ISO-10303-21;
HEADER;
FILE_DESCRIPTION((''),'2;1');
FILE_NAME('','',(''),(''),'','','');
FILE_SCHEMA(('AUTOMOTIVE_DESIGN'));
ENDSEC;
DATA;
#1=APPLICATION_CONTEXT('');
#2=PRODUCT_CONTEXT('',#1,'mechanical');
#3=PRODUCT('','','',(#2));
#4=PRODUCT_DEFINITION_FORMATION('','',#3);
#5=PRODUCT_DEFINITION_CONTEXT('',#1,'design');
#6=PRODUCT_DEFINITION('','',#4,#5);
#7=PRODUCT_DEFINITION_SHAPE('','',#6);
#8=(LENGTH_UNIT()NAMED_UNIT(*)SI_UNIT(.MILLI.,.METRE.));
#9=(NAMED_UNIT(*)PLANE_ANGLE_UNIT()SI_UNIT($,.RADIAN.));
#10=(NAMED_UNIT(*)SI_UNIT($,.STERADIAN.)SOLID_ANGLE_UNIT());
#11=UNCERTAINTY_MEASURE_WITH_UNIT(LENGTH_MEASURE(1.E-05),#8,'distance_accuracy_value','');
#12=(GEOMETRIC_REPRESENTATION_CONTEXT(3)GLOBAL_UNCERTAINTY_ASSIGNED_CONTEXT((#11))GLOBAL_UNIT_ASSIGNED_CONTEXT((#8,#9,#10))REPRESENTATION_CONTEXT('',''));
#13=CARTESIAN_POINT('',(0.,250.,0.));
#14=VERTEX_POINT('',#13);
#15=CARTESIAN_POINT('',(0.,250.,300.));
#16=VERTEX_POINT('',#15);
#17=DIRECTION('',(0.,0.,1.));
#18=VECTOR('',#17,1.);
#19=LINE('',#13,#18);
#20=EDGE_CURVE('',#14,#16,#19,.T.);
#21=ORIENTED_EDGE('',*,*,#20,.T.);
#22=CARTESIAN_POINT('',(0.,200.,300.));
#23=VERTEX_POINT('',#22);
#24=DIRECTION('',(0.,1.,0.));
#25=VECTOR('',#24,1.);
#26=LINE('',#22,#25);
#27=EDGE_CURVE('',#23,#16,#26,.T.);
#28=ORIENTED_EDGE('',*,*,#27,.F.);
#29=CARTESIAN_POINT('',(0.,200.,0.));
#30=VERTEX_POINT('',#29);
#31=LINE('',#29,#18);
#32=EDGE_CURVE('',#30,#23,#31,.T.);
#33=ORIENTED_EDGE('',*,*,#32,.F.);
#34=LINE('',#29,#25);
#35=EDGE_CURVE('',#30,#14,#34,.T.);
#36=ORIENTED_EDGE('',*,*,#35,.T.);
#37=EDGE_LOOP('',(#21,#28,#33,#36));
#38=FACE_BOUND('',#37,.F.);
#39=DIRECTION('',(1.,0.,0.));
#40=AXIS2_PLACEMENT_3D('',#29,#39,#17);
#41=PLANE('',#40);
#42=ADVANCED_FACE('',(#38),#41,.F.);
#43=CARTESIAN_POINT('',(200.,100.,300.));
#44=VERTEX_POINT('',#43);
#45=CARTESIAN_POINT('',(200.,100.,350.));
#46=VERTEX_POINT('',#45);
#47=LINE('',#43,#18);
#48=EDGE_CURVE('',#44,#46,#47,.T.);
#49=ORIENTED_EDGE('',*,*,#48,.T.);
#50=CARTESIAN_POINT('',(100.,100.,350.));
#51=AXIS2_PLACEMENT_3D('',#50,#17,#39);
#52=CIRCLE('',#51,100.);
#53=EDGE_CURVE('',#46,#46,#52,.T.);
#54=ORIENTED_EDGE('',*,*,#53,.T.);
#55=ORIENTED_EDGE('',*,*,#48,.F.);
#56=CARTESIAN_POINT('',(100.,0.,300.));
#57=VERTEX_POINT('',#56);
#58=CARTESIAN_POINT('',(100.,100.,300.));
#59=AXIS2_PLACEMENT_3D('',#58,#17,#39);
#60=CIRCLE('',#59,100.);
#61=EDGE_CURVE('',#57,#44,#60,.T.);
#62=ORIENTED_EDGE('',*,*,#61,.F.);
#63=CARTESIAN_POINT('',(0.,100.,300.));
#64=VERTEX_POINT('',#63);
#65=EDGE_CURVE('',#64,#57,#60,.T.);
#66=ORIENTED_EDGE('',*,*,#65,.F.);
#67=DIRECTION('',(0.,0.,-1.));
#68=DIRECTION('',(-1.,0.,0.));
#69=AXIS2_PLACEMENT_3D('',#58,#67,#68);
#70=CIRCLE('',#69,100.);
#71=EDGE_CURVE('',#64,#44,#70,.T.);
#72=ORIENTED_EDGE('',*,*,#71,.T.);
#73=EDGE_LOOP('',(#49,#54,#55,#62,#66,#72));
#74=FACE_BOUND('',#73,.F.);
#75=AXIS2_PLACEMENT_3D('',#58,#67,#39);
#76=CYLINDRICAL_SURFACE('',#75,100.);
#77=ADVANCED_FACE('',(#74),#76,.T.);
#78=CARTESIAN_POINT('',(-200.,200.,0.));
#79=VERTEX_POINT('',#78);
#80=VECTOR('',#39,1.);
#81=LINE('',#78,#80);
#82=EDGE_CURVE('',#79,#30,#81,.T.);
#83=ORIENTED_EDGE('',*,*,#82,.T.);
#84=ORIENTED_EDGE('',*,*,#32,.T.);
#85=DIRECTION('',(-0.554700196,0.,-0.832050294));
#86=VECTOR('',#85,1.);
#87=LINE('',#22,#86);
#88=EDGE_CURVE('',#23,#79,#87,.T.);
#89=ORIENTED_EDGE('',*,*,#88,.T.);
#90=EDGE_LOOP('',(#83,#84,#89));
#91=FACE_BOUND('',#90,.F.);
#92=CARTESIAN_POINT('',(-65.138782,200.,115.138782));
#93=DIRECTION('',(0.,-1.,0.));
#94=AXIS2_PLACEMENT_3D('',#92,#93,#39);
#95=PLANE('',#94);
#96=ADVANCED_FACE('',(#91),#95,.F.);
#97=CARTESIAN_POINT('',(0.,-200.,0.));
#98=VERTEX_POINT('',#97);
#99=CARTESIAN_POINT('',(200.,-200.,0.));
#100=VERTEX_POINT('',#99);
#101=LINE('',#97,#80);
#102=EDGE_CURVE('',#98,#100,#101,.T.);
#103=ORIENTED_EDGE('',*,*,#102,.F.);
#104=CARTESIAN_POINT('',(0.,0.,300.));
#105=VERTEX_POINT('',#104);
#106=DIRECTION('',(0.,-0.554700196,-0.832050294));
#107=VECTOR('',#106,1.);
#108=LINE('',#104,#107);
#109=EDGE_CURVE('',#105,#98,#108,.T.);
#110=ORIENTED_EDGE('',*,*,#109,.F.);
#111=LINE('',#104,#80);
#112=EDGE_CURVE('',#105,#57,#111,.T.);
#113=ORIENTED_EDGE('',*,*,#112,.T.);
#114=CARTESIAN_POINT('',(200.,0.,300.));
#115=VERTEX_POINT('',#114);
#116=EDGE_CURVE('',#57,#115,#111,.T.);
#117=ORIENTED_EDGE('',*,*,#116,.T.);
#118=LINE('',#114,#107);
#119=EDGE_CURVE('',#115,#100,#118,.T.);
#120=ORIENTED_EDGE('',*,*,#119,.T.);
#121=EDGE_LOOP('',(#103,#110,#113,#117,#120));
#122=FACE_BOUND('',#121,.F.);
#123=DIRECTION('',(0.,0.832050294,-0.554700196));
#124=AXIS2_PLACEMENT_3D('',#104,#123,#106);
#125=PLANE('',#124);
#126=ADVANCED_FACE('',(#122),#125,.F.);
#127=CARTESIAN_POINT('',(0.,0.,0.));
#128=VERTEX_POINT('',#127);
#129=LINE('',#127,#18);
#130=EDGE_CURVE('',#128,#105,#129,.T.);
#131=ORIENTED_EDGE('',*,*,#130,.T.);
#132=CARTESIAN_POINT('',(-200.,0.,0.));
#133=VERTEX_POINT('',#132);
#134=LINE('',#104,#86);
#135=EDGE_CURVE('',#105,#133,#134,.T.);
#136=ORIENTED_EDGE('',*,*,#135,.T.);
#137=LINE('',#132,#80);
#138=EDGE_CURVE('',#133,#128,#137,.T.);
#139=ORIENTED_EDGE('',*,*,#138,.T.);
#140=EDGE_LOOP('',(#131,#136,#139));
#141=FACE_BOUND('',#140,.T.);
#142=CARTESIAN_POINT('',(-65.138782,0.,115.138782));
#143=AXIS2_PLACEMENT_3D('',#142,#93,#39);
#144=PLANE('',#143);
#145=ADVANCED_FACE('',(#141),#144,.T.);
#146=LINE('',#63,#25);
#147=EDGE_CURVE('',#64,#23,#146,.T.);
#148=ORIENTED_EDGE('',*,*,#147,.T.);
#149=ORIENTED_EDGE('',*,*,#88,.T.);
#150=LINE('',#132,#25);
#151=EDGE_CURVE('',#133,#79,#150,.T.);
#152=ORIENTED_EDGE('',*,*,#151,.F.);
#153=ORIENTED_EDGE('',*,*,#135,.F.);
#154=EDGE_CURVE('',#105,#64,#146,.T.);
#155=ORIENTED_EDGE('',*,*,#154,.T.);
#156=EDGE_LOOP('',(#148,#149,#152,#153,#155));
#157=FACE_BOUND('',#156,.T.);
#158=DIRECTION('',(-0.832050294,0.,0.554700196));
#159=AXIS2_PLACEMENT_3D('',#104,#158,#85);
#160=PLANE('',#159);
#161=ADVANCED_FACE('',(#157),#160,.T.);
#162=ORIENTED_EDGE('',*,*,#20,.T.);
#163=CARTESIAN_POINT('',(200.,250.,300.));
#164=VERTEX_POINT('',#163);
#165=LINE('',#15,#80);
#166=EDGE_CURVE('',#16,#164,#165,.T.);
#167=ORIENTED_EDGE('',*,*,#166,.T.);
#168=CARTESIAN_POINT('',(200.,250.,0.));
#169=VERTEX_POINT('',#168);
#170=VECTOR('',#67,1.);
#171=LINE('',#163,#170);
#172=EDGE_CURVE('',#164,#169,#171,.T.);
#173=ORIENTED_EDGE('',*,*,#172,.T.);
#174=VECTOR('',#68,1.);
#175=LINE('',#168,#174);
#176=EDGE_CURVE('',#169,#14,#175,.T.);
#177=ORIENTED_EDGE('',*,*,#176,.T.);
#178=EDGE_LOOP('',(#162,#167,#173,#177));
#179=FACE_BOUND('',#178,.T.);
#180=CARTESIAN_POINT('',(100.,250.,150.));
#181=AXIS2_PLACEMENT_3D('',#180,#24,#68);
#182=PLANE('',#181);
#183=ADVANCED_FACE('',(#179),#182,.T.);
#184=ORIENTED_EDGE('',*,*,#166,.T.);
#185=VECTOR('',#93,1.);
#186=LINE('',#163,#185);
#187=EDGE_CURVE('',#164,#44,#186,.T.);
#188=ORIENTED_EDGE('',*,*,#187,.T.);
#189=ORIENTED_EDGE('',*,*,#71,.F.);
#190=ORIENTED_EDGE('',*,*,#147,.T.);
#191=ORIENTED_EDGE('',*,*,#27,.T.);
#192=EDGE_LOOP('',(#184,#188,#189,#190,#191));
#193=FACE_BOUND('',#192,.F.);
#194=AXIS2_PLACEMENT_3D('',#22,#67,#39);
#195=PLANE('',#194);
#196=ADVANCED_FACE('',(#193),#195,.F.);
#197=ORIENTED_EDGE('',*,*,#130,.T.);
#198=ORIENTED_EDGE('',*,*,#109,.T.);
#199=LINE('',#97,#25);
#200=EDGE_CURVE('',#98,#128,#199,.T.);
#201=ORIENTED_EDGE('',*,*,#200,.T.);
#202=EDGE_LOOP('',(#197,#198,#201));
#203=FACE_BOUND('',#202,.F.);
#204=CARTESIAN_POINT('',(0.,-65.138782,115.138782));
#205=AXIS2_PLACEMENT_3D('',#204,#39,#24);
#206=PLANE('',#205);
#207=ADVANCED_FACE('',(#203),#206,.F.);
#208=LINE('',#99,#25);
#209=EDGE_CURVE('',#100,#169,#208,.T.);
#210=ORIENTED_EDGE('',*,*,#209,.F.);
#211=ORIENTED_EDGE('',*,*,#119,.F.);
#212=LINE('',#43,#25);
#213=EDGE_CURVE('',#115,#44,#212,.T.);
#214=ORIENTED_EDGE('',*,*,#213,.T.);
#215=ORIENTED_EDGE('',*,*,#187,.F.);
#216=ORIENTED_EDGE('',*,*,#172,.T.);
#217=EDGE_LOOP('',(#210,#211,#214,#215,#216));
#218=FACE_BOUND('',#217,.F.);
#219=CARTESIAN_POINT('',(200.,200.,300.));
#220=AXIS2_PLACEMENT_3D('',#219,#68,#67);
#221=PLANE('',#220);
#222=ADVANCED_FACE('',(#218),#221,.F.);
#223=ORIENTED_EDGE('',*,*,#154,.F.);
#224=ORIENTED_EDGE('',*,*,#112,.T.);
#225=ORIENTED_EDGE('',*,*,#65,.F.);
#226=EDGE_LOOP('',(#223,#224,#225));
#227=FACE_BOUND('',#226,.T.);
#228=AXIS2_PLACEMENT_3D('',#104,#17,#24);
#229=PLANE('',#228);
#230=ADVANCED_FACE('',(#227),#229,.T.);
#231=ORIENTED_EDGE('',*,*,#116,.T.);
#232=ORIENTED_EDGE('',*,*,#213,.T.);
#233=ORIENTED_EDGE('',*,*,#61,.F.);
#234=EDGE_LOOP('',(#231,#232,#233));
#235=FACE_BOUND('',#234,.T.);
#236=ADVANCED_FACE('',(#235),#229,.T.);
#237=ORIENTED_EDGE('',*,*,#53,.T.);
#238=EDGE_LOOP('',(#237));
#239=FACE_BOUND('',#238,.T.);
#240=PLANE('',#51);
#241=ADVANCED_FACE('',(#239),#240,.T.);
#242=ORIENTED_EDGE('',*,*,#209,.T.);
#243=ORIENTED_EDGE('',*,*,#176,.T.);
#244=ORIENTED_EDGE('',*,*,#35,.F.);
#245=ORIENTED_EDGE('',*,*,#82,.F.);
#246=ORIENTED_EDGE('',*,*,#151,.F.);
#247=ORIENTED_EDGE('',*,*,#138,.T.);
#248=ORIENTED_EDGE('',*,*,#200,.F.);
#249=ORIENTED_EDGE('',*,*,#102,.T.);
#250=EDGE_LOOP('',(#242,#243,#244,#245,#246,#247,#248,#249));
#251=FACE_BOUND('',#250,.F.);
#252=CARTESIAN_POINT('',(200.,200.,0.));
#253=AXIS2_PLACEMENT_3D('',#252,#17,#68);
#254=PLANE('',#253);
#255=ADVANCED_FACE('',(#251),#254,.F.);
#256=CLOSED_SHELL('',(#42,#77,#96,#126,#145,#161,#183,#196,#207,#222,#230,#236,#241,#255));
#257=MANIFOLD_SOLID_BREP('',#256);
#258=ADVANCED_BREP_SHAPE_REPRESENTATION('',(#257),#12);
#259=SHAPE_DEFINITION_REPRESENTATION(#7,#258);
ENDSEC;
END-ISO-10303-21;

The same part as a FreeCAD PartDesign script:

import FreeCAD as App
import Part
import Sketcher

V = App.Vector

doc = App.newDocument("Part")
body = doc.addObject("PartDesign::Body", "Body")

# Sketch on YZ plane
sketch1 = body.newObject("Sketcher::SketchObject", "Sketch")
sketch1.AttachmentSupport = (doc.getObject("YZ_Plane"), [""])
sketch1.MapMode = "FlatFace"
sketch1.addGeometry([
    Part.LineSegment(V(0, 300, 0), V(0, 0, 0)),
    Part.LineSegment(V(0, 0, 0), V(200, 0, 0)),
    Part.LineSegment(V(200, 0, 0), V(200, 300, 0)),
    Part.LineSegment(V(200, 300, 0), V(0, 300, 0)),
], False)
sketch1.addConstraint([
    Sketcher.Constraint("Coincident", 0, 2, 1, 1),
    Sketcher.Constraint("Coincident", 1, 2, 2, 1),
    Sketcher.Constraint("Coincident", 2, 2, 3, 1),
    Sketcher.Constraint("Coincident", 3, 2, 0, 1),
    Sketcher.Constraint("Vertical", 0),
    Sketcher.Constraint("Horizontal", 1),
    Sketcher.Constraint("Vertical", 2),
    Sketcher.Constraint("Horizontal", 3),
    Sketcher.Constraint("Coincident", 0, 2, -1, 1),
    Sketcher.Constraint("DistanceX", 1, 1, 1, 2, 200.0),
    Sketcher.Constraint("DistanceY", 0, 2, 0, 1, 300.0),
])
pad1 = body.newObject("PartDesign::Pad", "Pad")
pad1.Profile = sketch1
pad1.Length = 200

# Sketch on YZ plane
sketch2 = body.newObject("Sketcher::SketchObject", "Sketch001")
sketch2.AttachmentSupport = (doc.getObject("YZ_Plane"), [""])
sketch2.MapMode = "FlatFace"
sketch2.addGeometry([
    Part.LineSegment(V(-200, 0, 0), V(0, 0, 0)),
    Part.LineSegment(V(0, 0, 0), V(0, 300, 0)),
    Part.LineSegment(V(0, 300, 0), V(-200, 0, 0)),
], False)
sketch2.addConstraint([
    Sketcher.Constraint("Coincident", 0, 2, 1, 1),
    Sketcher.Constraint("Coincident", 1, 2, 2, 1),
    Sketcher.Constraint("Coincident", 2, 2, 0, 1),
    Sketcher.Constraint("Horizontal", 0),
    Sketcher.Constraint("Vertical", 1),
    Sketcher.Constraint("Coincident", 0, 2, -1, 1),
    Sketcher.Constraint("DistanceX", 0, 1, 0, 2, 200.0),
    Sketcher.Constraint("DistanceY", 1, 1, 1, 2, 300.0),
])
pad2 = body.newObject("PartDesign::Pad", "Pad001")
pad2.Profile = sketch2
pad2.Length = 200

# Sketch on XY plane
sketch3 = body.newObject("Sketcher::SketchObject", "Sketch002")
sketch3.AttachmentSupport = (doc.getObject("XY_Plane"), [""])
sketch3.MapMode = "FlatFace"
sketch3.AttachmentOffset = App.Placement(V(0, 0, 300), App.Rotation())
sketch3.addGeometry(Part.Circle(V(100, 100, 0), V(0, 0, 1), 100), False)
sketch3.addConstraint([
    Sketcher.Constraint("Diameter", 0, 200.0),
    Sketcher.Constraint("DistanceX", -1, 1, 0, 3, 100.0),
    Sketcher.Constraint("DistanceY", -1, 1, 0, 3, 100.0),
])
pad3 = body.newObject("PartDesign::Pad", "Pad002")
pad3.Profile = sketch3
pad3.Length = 50

# Sketch on XZ plane
sketch4 = body.newObject("Sketcher::SketchObject", "Sketch003")
sketch4.AttachmentSupport = (doc.getObject("XZ_Plane"), [""])
sketch4.MapMode = "FlatFace"
sketch4.addGeometry([
    Part.LineSegment(V(-200, 0, 0), V(0, 0, 0)),
    Part.LineSegment(V(0, 0, 0), V(0, 300, 0)),
    Part.LineSegment(V(0, 300, 0), V(-200, 0, 0)),
], False)
sketch4.addConstraint([
    Sketcher.Constraint("Coincident", 0, 2, 1, 1),
    Sketcher.Constraint("Coincident", 1, 2, 2, 1),
    Sketcher.Constraint("Coincident", 2, 2, 0, 1),
    Sketcher.Constraint("Horizontal", 0),
    Sketcher.Constraint("Vertical", 1),
    Sketcher.Constraint("Coincident", 0, 2, -1, 1),
    Sketcher.Constraint("DistanceX", 0, 1, 0, 2, 200.0),
    Sketcher.Constraint("DistanceY", 1, 1, 1, 2, 300.0),
])
pad4 = body.newObject("PartDesign::Pad", "Pad003")
pad4.Profile = sketch4
pad4.Length = 200
pad4.Reversed = True

# Sketch on XZ plane
sketch5 = body.newObject("Sketcher::SketchObject", "Sketch004")
sketch5.AttachmentSupport = (doc.getObject("XZ_Plane"), [""])
sketch5.MapMode = "FlatFace"
sketch5.AttachmentOffset = App.Placement(V(0, 0, -200), App.Rotation())
sketch5.addGeometry([
    Part.LineSegment(V(200, 300, 0), V(200, 0, 0)),
    Part.LineSegment(V(200, 0, 0), V(0, 0, 0)),
    Part.LineSegment(V(0, 0, 0), V(0, 300, 0)),
    Part.LineSegment(V(0, 300, 0), V(200, 300, 0)),
], False)
sketch5.addConstraint([
    Sketcher.Constraint("Coincident", 0, 2, 1, 1),
    Sketcher.Constraint("Coincident", 1, 2, 2, 1),
    Sketcher.Constraint("Coincident", 2, 2, 3, 1),
    Sketcher.Constraint("Coincident", 3, 2, 0, 1),
    Sketcher.Constraint("Vertical", 0),
    Sketcher.Constraint("Horizontal", 1),
    Sketcher.Constraint("Vertical", 2),
    Sketcher.Constraint("Horizontal", 3),
    Sketcher.Constraint("Coincident", 1, 2, -1, 1),
    Sketcher.Constraint("DistanceX", 1, 2, 1, 1, 200.0),
    Sketcher.Constraint("DistanceY", 0, 2, 0, 1, 300.0),
])
pad5 = body.newObject("PartDesign::Pad", "Pad004")
pad5.Profile = sketch5
pad5.Length = 50
pad5.Reversed = True

doc.recompute()
